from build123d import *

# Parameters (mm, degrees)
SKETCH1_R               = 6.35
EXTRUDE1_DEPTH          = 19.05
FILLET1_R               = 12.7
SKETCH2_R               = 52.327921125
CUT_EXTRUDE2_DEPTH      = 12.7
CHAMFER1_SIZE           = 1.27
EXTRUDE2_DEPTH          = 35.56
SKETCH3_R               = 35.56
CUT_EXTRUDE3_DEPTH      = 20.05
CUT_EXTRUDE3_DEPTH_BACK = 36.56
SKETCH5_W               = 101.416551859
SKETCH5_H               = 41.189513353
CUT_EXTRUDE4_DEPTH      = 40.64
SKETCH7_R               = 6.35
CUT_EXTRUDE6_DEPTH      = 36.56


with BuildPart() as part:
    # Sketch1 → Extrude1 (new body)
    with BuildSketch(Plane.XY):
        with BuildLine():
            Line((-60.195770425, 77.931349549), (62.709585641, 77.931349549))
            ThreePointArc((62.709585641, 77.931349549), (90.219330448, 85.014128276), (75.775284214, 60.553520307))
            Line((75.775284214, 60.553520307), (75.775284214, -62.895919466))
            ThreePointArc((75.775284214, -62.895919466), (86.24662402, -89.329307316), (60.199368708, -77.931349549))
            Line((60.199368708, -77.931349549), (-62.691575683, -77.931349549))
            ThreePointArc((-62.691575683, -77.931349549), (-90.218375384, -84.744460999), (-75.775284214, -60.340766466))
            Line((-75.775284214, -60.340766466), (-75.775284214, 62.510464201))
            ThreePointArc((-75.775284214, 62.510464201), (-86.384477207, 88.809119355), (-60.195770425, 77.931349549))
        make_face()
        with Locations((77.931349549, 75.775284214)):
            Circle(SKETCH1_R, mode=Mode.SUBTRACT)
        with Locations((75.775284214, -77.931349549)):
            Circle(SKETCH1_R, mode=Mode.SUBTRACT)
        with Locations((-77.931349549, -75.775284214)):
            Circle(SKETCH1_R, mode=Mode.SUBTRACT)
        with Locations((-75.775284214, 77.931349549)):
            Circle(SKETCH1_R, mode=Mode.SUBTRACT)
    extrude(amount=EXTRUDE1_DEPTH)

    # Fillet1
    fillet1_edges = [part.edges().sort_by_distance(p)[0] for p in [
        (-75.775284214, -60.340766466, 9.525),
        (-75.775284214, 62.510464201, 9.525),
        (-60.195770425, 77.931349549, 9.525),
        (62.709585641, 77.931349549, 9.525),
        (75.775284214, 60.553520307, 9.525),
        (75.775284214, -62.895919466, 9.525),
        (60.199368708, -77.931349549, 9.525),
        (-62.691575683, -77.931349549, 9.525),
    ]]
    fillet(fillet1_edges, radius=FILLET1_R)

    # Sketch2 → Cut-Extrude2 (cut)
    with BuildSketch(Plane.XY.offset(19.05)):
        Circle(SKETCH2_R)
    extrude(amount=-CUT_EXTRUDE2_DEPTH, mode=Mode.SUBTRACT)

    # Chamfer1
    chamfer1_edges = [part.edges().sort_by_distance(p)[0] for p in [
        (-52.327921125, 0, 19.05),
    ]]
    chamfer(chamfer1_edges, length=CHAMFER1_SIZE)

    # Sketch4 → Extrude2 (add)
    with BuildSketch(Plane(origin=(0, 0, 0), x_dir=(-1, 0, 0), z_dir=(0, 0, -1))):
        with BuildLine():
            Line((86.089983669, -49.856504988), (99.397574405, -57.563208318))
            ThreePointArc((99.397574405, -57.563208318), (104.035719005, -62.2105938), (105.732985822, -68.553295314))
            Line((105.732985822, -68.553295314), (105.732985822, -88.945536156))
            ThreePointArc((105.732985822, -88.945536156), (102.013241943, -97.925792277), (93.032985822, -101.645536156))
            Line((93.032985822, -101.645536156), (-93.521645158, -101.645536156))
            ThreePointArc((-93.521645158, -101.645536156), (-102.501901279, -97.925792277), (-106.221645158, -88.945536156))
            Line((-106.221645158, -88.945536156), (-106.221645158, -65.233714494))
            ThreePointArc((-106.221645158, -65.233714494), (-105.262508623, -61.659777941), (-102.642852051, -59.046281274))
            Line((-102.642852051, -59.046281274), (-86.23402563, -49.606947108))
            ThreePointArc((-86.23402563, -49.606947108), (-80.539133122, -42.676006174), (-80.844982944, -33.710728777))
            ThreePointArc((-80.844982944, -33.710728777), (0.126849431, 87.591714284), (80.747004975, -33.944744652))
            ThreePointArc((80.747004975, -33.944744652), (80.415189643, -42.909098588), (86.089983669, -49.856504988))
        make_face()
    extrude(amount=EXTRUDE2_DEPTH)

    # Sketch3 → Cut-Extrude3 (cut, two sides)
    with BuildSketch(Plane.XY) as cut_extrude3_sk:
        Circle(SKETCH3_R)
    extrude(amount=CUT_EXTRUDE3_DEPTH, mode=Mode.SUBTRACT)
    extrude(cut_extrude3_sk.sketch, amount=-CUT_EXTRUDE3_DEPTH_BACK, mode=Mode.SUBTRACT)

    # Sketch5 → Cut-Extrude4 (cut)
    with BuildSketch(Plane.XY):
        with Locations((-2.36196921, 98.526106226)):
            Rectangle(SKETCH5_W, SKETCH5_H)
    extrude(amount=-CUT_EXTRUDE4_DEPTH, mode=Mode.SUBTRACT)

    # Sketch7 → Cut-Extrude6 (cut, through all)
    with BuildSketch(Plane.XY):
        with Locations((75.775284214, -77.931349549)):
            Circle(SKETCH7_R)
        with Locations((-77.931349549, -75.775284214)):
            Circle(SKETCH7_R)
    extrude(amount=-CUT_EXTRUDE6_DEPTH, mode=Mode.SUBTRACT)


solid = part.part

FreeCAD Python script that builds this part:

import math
import FreeCAD as App
import Part
import Sketcher

V = App.Vector
Q = App.Units.Quantity


def edges_at(feature, points):
    """Names of the edges that pass closest to the given points."""
    edges = feature.Shape.Edges
    near = lambda p: min(range(len(edges)), key=lambda i: edges[i].distToShape(Part.Vertex(*p))[0])
    return sorted({f"Edge{near(p) + 1}" for p in points})

doc = App.newDocument("Part")
body = doc.addObject("PartDesign::Body", "Body")

# Sketch on XY plane
sketch1 = doc.addObject("Sketcher::SketchObject", "Sketch")
body.addObject(sketch1)
sketch1.AttachmentSupport = (doc.XY_Plane, [""])
sketch1.MapMode = "FlatFace"
sketch1.addGeometry([
    Part.LineSegment(V(62.709586, 77.93135, 0), V(-60.19577, 77.93135, 0)),  # 0
    Part.ArcOfCircle(Part.Circle(V(-75.569396, 77.882788, 0), V(0, 0, 1), 15.373702), math.radians(0.180985), math.radians(269.232658)),  # 1
    Part.LineSegment(V(-75.775284, 62.510464, 0), V(-75.775284, -60.340766, 0)),  # 2
    Part.ArcOfCircle(Part.Circle(V(-77.882744, -75.569336, 0), V(0, 0, 1), 15.373702), math.radians(82.120962), math.radians(351.162078)),  # 3
    Part.LineSegment(V(-62.691576, -77.93135, 0), V(60.199369, -77.93135, 0)),  # 4
    Part.ArcOfCircle(Part.Circle(V(75.569379, -78.268243, 0), V(0, 0, 1), 15.373702), math.radians(178.744343), math.radians(449.232595)),  # 5
    Part.LineSegment(V(75.775284, -62.895919, 0), V(75.775284, 60.55352, 0)),  # 6
    Part.ArcOfCircle(Part.Circle(V(77.93135, 75.775284, 0), V(0, 0, 1), 15.373702), math.radians(-98.06195), math.radians(171.93805)),  # 7
    Part.Circle(V(75.775284, -77.93135, 0), V(0, 0, 1), 6.35),  # 8
    Part.Circle(V(-77.93135, -75.775284, 0), V(0, 0, 1), 6.35),  # 9
    Part.Circle(V(77.93135, 75.775284, 0), V(0, 0, 1), 6.35),  # 10
    Part.Circle(V(-75.775284, 77.93135, 0), V(0, 0, 1), 6.35),  # 11
], False)
sketch1.addConstraint([
    Sketcher.Constraint("Coincident", 0, 2, 1, 1),
    Sketcher.Constraint("Coincident", 1, 2, 2, 1),
    Sketcher.Constraint("Coincident", 2, 2, 3, 1),
    Sketcher.Constraint("Coincident", 3, 2, 4, 1),
    Sketcher.Constraint("Coincident", 4, 2, 5, 1),
    Sketcher.Constraint("Coincident", 5, 2, 6, 1),
    Sketcher.Constraint("Coincident", 6, 2, 7, 1),
    Sketcher.Constraint("Coincident", 7, 2, 0, 1),
    Sketcher.Constraint("Horizontal", 0),
    Sketcher.Constraint("Vertical", 2),
    Sketcher.Constraint("Horizontal", 4),
    Sketcher.Constraint("Vertical", 6),
    Sketcher.Constraint("Coincident", 10, 3, 7, 3),
    Sketcher.Constraint("Diameter", 8, Q("0.5 in")),
    Sketcher.Constraint("Diameter", 9, Q("0.5 in")),
    Sketcher.Constraint("Diameter", 10, Q("0.5 in")),
    Sketcher.Constraint("Diameter", 11, Q("0.5 in")),
    Sketcher.Constraint("Radius", 1, Q("15.373702 mm")),
    Sketcher.Constraint("Radius", 3, Q("15.373702 mm")),
    Sketcher.Constraint("Radius", 5, Q("15.373702 mm")),
    Sketcher.Constraint("Radius", 7, Q("15.373702 mm")),
    Sketcher.Constraint("DistanceY", 2, 2, 2, 1, Q("122.851231 mm")),
    Sketcher.Constraint("DistanceY", 6, 1, 6, 2, Q("123.44944 mm")),
    Sketcher.Constraint("DistanceX", 9, 3, 7, 3, Q("155.862699 mm")),
    Sketcher.Constraint("DistanceY", 3, 3, 1, 2, Q("138.0798 mm")),
    Sketcher.Constraint("DistanceX", 7, 2, 6, 2, Q("13.065699 mm")),
    Sketcher.Constraint("DistanceX", 0, 2, 0, 1, Q("122.905356 mm")),
    Sketcher.Constraint("DistanceX", 4, 1, 4, 2, Q("122.890944 mm")),
    Sketcher.Constraint("DistanceX", -1, 1, 5, 3, Q("75.569379 mm")),
    Sketcher.Constraint("DistanceX", -1, 1, 7, 3, Q("77.93135 mm")),
    Sketcher.Constraint("DistanceY", 8, 3, -1, 1, Q("77.93135 mm")),
    Sketcher.Constraint("DistanceY", -1, 1, 11, 3, Q("77.93135 mm")),
    Sketcher.Constraint("DistanceX", 0, 2, -1, 1, Q("60.19577 mm")),
    Sketcher.Constraint("DistanceY", -1, 1, 0, 2, Q("77.93135 mm")),
    Sketcher.Constraint("DistanceY", 3, 2, -1, 1, Q("77.93135 mm")),
    Sketcher.Constraint("DistanceX", 3, 3, 1, 3, Q("2.313349 mm")),
    Sketcher.Constraint("DistanceX", 3, 3, 8, 3, Q("153.658029 mm")),
    Sketcher.Constraint("DistanceY", 9, 3, 3, 3, Q("0.205948 mm")),
    Sketcher.Constraint("DistanceX", 11, 3, 1, 3, Q("0.205888 mm")),
])
pad1 = doc.addObject("PartDesign::Pad", "Pad")
body.addObject(pad1)
pad1.Profile = sketch1
pad1.Length = Q("0.75 in")
doc.recompute()

fillet = doc.addObject("PartDesign::Fillet", "Fillet")
body.addObject(fillet)
fillet.Base = (pad1, edges_at(pad1, [
    (-75.775, -60.341, 9.525),
    (-75.775, 62.51, 9.525),
    (-60.196, 77.931, 9.525),
    (62.71, 77.931, 9.525),
    (75.775, 60.554, 9.525),
    (75.775, -62.896, 9.525),
    (60.199, -77.931, 9.525),
    (-62.692, -77.931, 9.525),
]))
fillet.Radius = Q("0.5 in")

# Sketch on XY plane
sketch2 = doc.addObject("Sketcher::SketchObject", "Sketch001")
body.addObject(sketch2)
sketch2.AttachmentSupport = (doc.XY_Plane, [""])
sketch2.MapMode = "FlatFace"
sketch2.AttachmentOffset = App.Placement(V(0, 0, 0.75 * 25.4), App.Rotation())
sketch2.addGeometry(Part.Circle(V(0, 0, 0), V(0, 0, 1), 52.327921), False)
sketch2.addConstraint([
    Sketcher.Constraint("Coincident", 0, 3, -1, 1),
    Sketcher.Constraint("Diameter", 0, Q("104.655842 mm")),
])
pocket1 = doc.addObject("PartDesign::Pocket", "Pocket")
body.addObject(pocket1)
pocket1.Profile = sketch2
pocket1.Length = Q("0.5 in")
doc.recompute()

chamfer = doc.addObject("PartDesign::Chamfer", "Chamfer")
body.addObject(chamfer)
chamfer.Base = (pocket1, edges_at(pocket1, [(-52.328, 0, 19.05)]))
chamfer.Size = Q("0.05 in")

# Sketch on XY plane
sketch3 = doc.addObject("Sketcher::SketchObject", "Sketch002")
body.addObject(sketch3)
sketch3.AttachmentSupport = (doc.XY_Plane, [""])
sketch3.MapMode = "FlatFace"
sketch3.addGeometry([
    Part.LineSegment(V(-99.397574, -57.563208, 0), V(-86.089984, -49.856505, 0)),  # 0
    Part.ArcOfCircle(Part.Circle(V(-92.454572, -38.866418, 0), V(0, 0, 1), 12.7), math.radians(-59.923973), math.radians(22.801103)),  # 1
    Part.ArcOfCircle(Part.Circle(V(0, 0, 0), V(0, 0, 1), 87.591806), math.radians(-22.635153), math.radians(202.801103)),  # 2
    Part.ArcOfCircle(Part.Circle(V(92.566756, -38.598472, 0), V(0, 0, 1), 12.7), math.radians(157.364847), math.radians(240.089923)),  # 3
    Part.LineSegment(V(86.234026, -49.606947, 0), V(102.642852, -59.046281, 0)),  # 4
    Part.ArcOfCircle(Part.Circle(V(99.083472, -65.233714, 0), V(0, 0, 1), 7.138173), math.radians(0), math.radians(60.089923)),  # 5
    Part.LineSegment(V(106.221645, -65.233714, 0), V(106.221645, -88.945536, 0)),  # 6
    Part.ArcOfCircle(Part.Circle(V(93.521645, -88.945536, 0), V(0, 0, 1), 12.7), math.radians(-90), math.radians(0)),  # 7
    Part.LineSegment(V(93.521645, -101.645536, 0), V(-93.032986, -101.645536, 0)),  # 8
    Part.ArcOfCircle(Part.Circle(V(-93.032986, -88.945536, 0), V(0, 0, 1), 12.7), math.radians(180), math.radians(270)),  # 9
    Part.LineSegment(V(-105.732986, -88.945536, 0), V(-105.732986, -68.553295, 0)),  # 10
    Part.ArcOfCircle(Part.Circle(V(-93.032986, -68.553295, 0), V(0, 0, 1), 12.7), math.radians(120.076027), math.radians(180)),  # 11
], False)
sketch3.addConstraint([
    Sketcher.Constraint("Tangent", 0, 2, 1, 1),
    Sketcher.Constraint("Tangent", 1, 2, 2, 2),
    Sketcher.Constraint("Tangent", 2, 1, 3, 1),
    Sketcher.Constraint("Tangent", 3, 2, 4, 1),
    Sketcher.Constraint("Tangent", 4, 2, 5, 2),
    Sketcher.Constraint("Tangent", 5, 1, 6, 1),
    Sketcher.Constraint("Tangent", 6, 2, 7, 2),
    Sketcher.Constraint("Tangent", 7, 1, 8, 1),
    Sketcher.Constraint("Tangent", 8, 2, 9, 2),
    Sketcher.Constraint("Tangent", 9, 1, 10, 1),
    Sketcher.Constraint("Tangent", 10, 2, 11, 2),
    Sketcher.Constraint("Tangent", 11, 1, 0, 1),
    Sketcher.Constraint("Vertical", 6),
    Sketcher.Constraint("Horizontal", 8),
    Sketcher.Constraint("Vertical", 10),
    Sketcher.Constraint("Coincident", 2, 3, -1, 1),
    Sketcher.Constraint("Equal", 1, 3),
    Sketcher.Constraint("Equal", 3, 7),
    Sketcher.Constraint("Equal", 7, 9),
    Sketcher.Constraint("Equal", 9, 11),
    Sketcher.Constraint("Radius", 1, Q("0.5 in")),
    Sketcher.Constraint("Radius", 2, Q("87.591806 mm")),
    Sketcher.Constraint("Radius", 5, Q("7.138173 mm")),
    Sketcher.Constraint("DistanceX", 11, 3, 1, 2, Q("0.4837 in")),
    Sketcher.Constraint("DistanceX", 8, 2, 8, 1, Q("186.554631 mm")),
    Sketcher.Constraint("DistanceY", 6, 2, 6, 1, Q("23.711822 mm")),
    Sketcher.Constraint("DistanceY", 10, 1, 10, 2, Q("20.392241 mm")),
    Sketcher.Constraint("Distance", 4, Q("18.930151 mm")),
    Sketcher.Constraint("DistanceY", 3, 3, -1, 1, Q("38.598472 mm")),
    Sketcher.Constraint("DistanceX", -1, 1, 5, 3, Q("99.083472 mm")),
])
pad2 = doc.addObject("PartDesign::Pad", "Pad001")
body.addObject(pad2)
pad2.Profile = sketch3
pad2.Length = Q("1.4 in")
pad2.Reversed = True

# Sketch on XY plane
sketch4 = doc.addObject("Sketcher::SketchObject", "Sketch003")
body.addObject(sketch4)
sketch4.AttachmentSupport = (doc.XY_Plane, [""])
sketch4.MapMode = "FlatFace"
sketch4.addGeometry(Part.Circle(V(0, 0, 0), V(0, 0, 1), 35.56), False)
sketch4.addConstraint([
    Sketcher.Constraint("Coincident", 0, 3, -1, 1),
    Sketcher.Constraint("Diameter", 0, Q("2.8 in")),
])
pocket2 = doc.addObject("PartDesign::Pocket", "Pocket001")
body.addObject(pocket2)
pocket2.Profile = sketch4
pocket2.Type = "ThroughAll"
pocket2.Midplane = True

# Sketch on XY plane
sketch5 = doc.addObject("Sketcher::SketchObject", "Sketch004")
body.addObject(sketch5)
sketch5.AttachmentSupport = (doc.XY_Plane, [""])
sketch5.MapMode = "FlatFace"
sketch5.addGeometry([
    Part.LineSegment(V(-53.070245, 119.120863, 0), V(-53.070245, 77.93135, 0)),
    Part.LineSegment(V(-53.070245, 77.93135, 0), V(48.346307, 77.93135, 0)),
    Part.LineSegment(V(48.346307, 77.93135, 0), V(48.346307, 119.120863, 0)),
    Part.LineSegment(V(48.346307, 119.120863, 0), V(-53.070245, 119.120863, 0)),
], False)
sketch5.addConstraint([
    Sketcher.Constraint("Coincident", 0, 2, 1, 1),
    Sketcher.Constraint("Coincident", 1, 2, 2, 1),
    Sketcher.Constraint("Coincident", 2, 2, 3, 1),
    Sketcher.Constraint("Coincident", 3, 2, 0, 1),
    Sketcher.Constraint("Vertical", 0),
    Sketcher.Constraint("Horizontal", 1),
    Sketcher.Constraint("Vertical", 2),
    Sketcher.Constraint("Horizontal", 3),
    Sketcher.Constraint("DistanceX", 1, 1, 1, 2, Q("101.416552 mm")),
    Sketcher.Constraint("DistanceY", 0, 2, 0, 1, Q("41.189513 mm")),
    Sketcher.Constraint("DistanceY", -1, 1, 0, 2, Q("77.93135 mm")),
    Sketcher.Constraint("DistanceX", 0, 2, -1, 1, Q("53.070245 mm")),
])
pocket3 = doc.addObject("PartDesign::Pocket", "Pocket002")
body.addObject(pocket3)
pocket3.Profile = sketch5
pocket3.Length = Q("1.6 in")

# Sketch on XY plane
sketch6 = doc.addObject("Sketcher::SketchObject", "Sketch005")
body.addObject(sketch6)
sketch6.AttachmentSupport = (doc.XY_Plane, [""])
sketch6.MapMode = "FlatFace"
sketch6.addGeometry([
    Part.Circle(V(75.775284, -77.93135, 0), V(0, 0, 1), 6.35),
    Part.Circle(V(-77.93135, -75.775284, 0), V(0, 0, 1), 6.35),
], False)
sketch6.addConstraint([
    Sketcher.Constraint("Equal", 0, 1),
    Sketcher.Constraint("Diameter", 0, Q("0.5 in")),
    Sketcher.Constraint("DistanceY", 0, 3, -1, 1, Q("77.93135 mm")),
    Sketcher.Constraint("DistanceX", 1, 3, -1, 1, Q("77.93135 mm")),
    Sketcher.Constraint("DistanceX", -1, 1, 0, 3, Q("75.775284 mm")),
    Sketcher.Constraint("DistanceY", 1, 3, -1, 1, Q("75.775284 mm")),
])
pocket4 = doc.addObject("PartDesign::Pocket", "Pocket003")
body.addObject(pocket4)
pocket4.Profile = sketch6
pocket4.Type = "ThroughAll"

doc.recompute()
